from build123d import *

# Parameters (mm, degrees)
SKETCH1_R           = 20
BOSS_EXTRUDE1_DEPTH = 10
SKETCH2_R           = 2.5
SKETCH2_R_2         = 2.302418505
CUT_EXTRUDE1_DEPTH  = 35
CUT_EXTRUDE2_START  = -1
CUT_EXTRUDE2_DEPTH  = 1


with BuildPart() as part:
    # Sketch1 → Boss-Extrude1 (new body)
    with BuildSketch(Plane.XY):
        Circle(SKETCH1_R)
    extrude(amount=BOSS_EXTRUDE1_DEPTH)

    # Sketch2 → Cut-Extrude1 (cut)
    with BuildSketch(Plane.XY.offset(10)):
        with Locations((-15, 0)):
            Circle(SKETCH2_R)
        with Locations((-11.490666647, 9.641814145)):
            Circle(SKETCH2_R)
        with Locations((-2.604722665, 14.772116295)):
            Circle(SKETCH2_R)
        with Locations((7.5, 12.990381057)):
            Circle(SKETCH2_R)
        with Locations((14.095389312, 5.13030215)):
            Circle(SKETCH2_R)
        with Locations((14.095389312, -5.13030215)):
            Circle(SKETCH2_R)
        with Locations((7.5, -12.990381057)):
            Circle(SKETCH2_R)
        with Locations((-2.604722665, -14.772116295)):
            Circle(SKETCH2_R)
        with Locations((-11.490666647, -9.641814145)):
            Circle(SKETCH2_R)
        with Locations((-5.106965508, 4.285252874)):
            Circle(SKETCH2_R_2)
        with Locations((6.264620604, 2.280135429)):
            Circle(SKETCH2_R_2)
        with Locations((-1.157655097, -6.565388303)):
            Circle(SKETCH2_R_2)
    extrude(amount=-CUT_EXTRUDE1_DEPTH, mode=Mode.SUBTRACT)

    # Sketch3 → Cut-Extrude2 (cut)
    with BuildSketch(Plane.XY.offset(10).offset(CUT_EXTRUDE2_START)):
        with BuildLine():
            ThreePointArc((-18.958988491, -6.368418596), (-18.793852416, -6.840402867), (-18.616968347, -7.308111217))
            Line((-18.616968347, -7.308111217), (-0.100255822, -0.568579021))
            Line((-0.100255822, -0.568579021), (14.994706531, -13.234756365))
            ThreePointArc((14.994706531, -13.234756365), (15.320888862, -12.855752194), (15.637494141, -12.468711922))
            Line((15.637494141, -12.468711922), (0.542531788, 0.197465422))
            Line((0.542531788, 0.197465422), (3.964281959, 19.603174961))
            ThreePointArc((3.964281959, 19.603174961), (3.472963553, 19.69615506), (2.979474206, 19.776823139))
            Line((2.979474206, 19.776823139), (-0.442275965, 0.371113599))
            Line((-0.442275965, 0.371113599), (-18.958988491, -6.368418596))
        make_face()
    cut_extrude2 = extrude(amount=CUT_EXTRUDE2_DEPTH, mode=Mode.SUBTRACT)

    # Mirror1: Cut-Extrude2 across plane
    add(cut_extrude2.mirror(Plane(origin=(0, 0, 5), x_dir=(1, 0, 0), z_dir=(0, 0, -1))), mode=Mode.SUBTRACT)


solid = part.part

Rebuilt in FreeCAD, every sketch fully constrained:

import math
import FreeCAD as App
import Part
import Sketcher
Q = App.Units.Quantity

doc = App.newDocument("Part")
body = doc.addObject("PartDesign::Body", "Body")

# Sketch on XY plane
sketch1 = body.newObject("Sketcher::SketchObject", "Sketch")
sketch1.AttachmentSupport = (doc.getObject("XY_Plane"), [""])
sketch1.MapMode = "FlatFace"
sketch1.addGeometry(Part.Circle(App.Vector(0, 0, 0), App.Vector(0, 0, 1), 20), False)
sketch1.addConstraint([
    Sketcher.Constraint("Coincident", 0, 3, -1, 1),
    Sketcher.Constraint("Diameter", 0, Q("40 mm")),
])
pad1 = body.newObject("PartDesign::Pad", "Pad")
pad1.Profile = sketch1
pad1.Length = 10

# Sketch on XY plane
sketch2 = body.newObject("Sketcher::SketchObject", "Sketch001")
sketch2.AttachmentSupport = (doc.getObject("XY_Plane"), [""])
sketch2.MapMode = "FlatFace"
sketch2.AttachmentOffset = App.Placement(App.Vector(0, 0, 10), App.Rotation())
sketch2.addGeometry([
    Part.Circle(App.Vector(-15, 0, 0), App.Vector(0, 0, 1), 2.5),  # 0
    Part.Circle(App.Vector(-11.5, 9.6, 0), App.Vector(0, 0, 1), 2.5),  # 1
    Part.Circle(App.Vector(-2.6, 14.8, 0), App.Vector(0, 0, 1), 2.5),  # 2
    Part.Circle(App.Vector(7.5, 13, 0), App.Vector(0, 0, 1), 2.5),  # 3
    Part.Circle(App.Vector(14.1, 5.1, 0), App.Vector(0, 0, 1), 2.5),  # 4
    Part.Circle(App.Vector(14.1, -5.1, 0), App.Vector(0, 0, 1), 2.5),  # 5
    Part.Circle(App.Vector(7.5, -13, 0), App.Vector(0, 0, 1), 2.5),  # 6
    Part.Circle(App.Vector(-2.6, -14.8, 0), App.Vector(0, 0, 1), 2.5),  # 7
    Part.Circle(App.Vector(-11.5, -9.6, 0), App.Vector(0, 0, 1), 2.5),  # 8
    Part.Circle(App.Vector(-5.1, 4.3, 0), App.Vector(0, 0, 1), 2.3),  # 9
    Part.Circle(App.Vector(6.3, 2.3, 0), App.Vector(0, 0, 1), 2.3),  # 10
    Part.Circle(App.Vector(-1.2, -6.6, 0), App.Vector(0, 0, 1), 2.3),  # 11
], False)
sketch2.addConstraint([
    Sketcher.Constraint("Equal", 0, 1),
    Sketcher.Constraint("Equal", 1, 2),
    Sketcher.Constraint("Equal", 2, 3),
    Sketcher.Constraint("Equal", 3, 4),
    Sketcher.Constraint("Equal", 4, 5),
    Sketcher.Constraint("Equal", 5, 6),
    Sketcher.Constraint("Equal", 6, 7),
    Sketcher.Constraint("Equal", 7, 8),
    Sketcher.Constraint("Equal", 9, 10),
    Sketcher.Constraint("Equal", 10, 11),
    Sketcher.Constraint("Symmetric", 4, 3, 5, 3, -1),
    Sketcher.Constraint("Symmetric", 3, 3, 6, 3, -1),
    Sketcher.Constraint("Symmetric", 2, 3, 7, 3, -1),
    Sketcher.Constraint("Symmetric", 1, 3, 8, 3, -1),
    Sketcher.Constraint("PointOnObject", 0, 3, -1),
    Sketcher.Constraint("Diameter", 0, Q("5 mm")),
    Sketcher.Constraint("DistanceX", 0, 3, -1, 1, Q("15 mm")),
    Sketcher.Constraint("DistanceX", -1, 1, 3, 3, Q("7.5 mm")),
    Sketcher.Constraint("Diameter", 9, Q("4.604837 mm")),
    Sketcher.Constraint("DistanceX", 1, 3, 9, 3, Q("6.383701 mm")),
    Sketcher.Constraint("DistanceY", -1, 1, 3, 3, Q("12.990381 mm")),
    Sketcher.Constraint("DistanceX", -1, 1, 4, 3, Q("14.095389 mm")),
    Sketcher.Constraint("DistanceX", -1, 1, 10, 3, Q("6.264621 mm")),
    Sketcher.Constraint("DistanceY", 11, 3, -1, 1, Q("6.565388 mm")),
    Sketcher.Constraint("DistanceY", 4, 3, 3, 3, Q("7.860079 mm")),
    Sketcher.Constraint("DistanceX", 2, 3, 4, 3, Q("16.700112 mm")),
    Sketcher.Constraint("DistanceY", 4, 3, 1, 3, Q("4.511512 mm")),
    Sketcher.Constraint("DistanceY", 5, 3, 2, 3, Q("19.902418 mm")),
    Sketcher.Constraint("DistanceY", 9, 3, 1, 3, Q("5.356561 mm")),
    Sketcher.Constraint("DistanceY", 10, 3, 2, 3, Q("12.491981 mm")),
    Sketcher.Constraint("DistanceX", 8, 3, 11, 3, Q("10.333012 mm")),
    Sketcher.Constraint("DistanceX", 1, 3, -1, 1, Q("11.490667 mm")),
])
pocket1 = body.newObject("PartDesign::Pocket", "Pocket")
pocket1.Profile = sketch2
pocket1.Length = 35

# Sketch on XY plane
sketch3 = body.newObject("Sketcher::SketchObject", "Sketch002")
sketch3.AttachmentSupport = (doc.getObject("XY_Plane"), [""])
sketch3.MapMode = "FlatFace"
sketch3.AttachmentOffset = App.Placement(App.Vector(0, 0, 9), App.Rotation())
sketch3.addGeometry([
    Part.ArcOfCircle(Part.Circle(App.Vector(0, 0, 0), App.Vector(0, 0, 1), 20), math.radians(-161.43), math.radians(-158.57)),  # 0
    Part.LineSegment(App.Vector(-18.6, -7.3, 0), App.Vector(-0.1, -0.6, 0)),  # 1
    Part.LineSegment(App.Vector(-0.1, -0.6, 0), App.Vector(15, -13.2, 0)),  # 2
    Part.ArcOfCircle(Part.Circle(App.Vector(0, 0, 0), App.Vector(0, 0, 1), 20), math.radians(-41.43), math.radians(-38.57)),  # 3
    Part.LineSegment(App.Vector(15.6, -12.5, 0), App.Vector(0.5, 0.2, 0)),  # 4
    Part.LineSegment(App.Vector(0.5, 0.2, 0), App.Vector(4, 19.6, 0)),  # 5
    Part.ArcOfCircle(Part.Circle(App.Vector(0, 0, 0), App.Vector(0, 0, 1), 20), math.radians(78.57), math.radians(81.43)),  # 6
    Part.LineSegment(App.Vector(3, 19.8, 0), App.Vector(-0.4, 0.4, 0)),  # 7
    Part.LineSegment(App.Vector(-0.4, 0.4, 0), App.Vector(-19, -6.4, 0)),  # 8
], False)
sketch3.addConstraint([
    Sketcher.Constraint("Coincident", 0, 2, 1, 1),
    Sketcher.Constraint("Coincident", 1, 2, 2, 1),
    Sketcher.Constraint("Coincident", 2, 2, 3, 1),
    Sketcher.Constraint("Coincident", 3, 2, 4, 1),
    Sketcher.Constraint("Coincident", 4, 2, 5, 1),
    Sketcher.Constraint("Coincident", 5, 2, 6, 1),
    Sketcher.Constraint("Coincident", 6, 2, 7, 1),
    Sketcher.Constraint("Coincident", 7, 2, 8, 1),
    Sketcher.Constraint("Coincident", 8, 2, 0, 1),
    Sketcher.Constraint("Coincident", 0, 3, -1, 1),
    Sketcher.Constraint("Coincident", 3, 3, -1, 1),
    Sketcher.Constraint("Coincident", 6, 3, -1, 1),
    Sketcher.Constraint("Equal", 0, 3),
    Sketcher.Constraint("Equal", 3, 6),
    Sketcher.Constraint("Parallel", 2, 4),
    Sketcher.Constraint("Parallel", 5, 7),
    Sketcher.Constraint("Parallel", 1, 8),
    Sketcher.Constraint("Equal", 1, 2),
    Sketcher.Constraint("Equal", 2, 4),
    Sketcher.Constraint("Equal", 4, 5),
    Sketcher.Constraint("Equal", 5, 7),
    Sketcher.Constraint("Equal", 7, 8),
    Sketcher.Constraint("Radius", 0, Q("19.999999 mm")),
    Sketcher.Constraint("Angle", 1, Q("20 deg")),
    Sketcher.Constraint("Angle", 2, Q("-40 deg")),
    Sketcher.Constraint("Angle", 5, Q("80 deg")),
    Sketcher.Constraint("DistanceX", 0, 2, -1, 1, Q("18.616968 mm")),
])
pocket2 = body.newObject("PartDesign::Pocket", "Pocket001")
pocket2.Profile = sketch3
pocket2.Length = 1
pocket2.Reversed = True
doc.recompute()

datumplane = body.newObject("PartDesign::Plane", "DatumPlane")
datumplane.AttachmentSupport = (doc.getObject("XY_Plane"), [""])
datumplane.MapMode = "FlatFace"
datumplane.AttachmentOffset = App.Placement(App.Vector(0, 0, 5), App.Rotation())
mirrored = body.newObject("PartDesign::Mirrored", "Mirrored")
mirrored.Originals = [pocket2]
mirrored.MirrorPlane = (datumplane, [""])
body.Tip = mirrored

doc.recompute()
